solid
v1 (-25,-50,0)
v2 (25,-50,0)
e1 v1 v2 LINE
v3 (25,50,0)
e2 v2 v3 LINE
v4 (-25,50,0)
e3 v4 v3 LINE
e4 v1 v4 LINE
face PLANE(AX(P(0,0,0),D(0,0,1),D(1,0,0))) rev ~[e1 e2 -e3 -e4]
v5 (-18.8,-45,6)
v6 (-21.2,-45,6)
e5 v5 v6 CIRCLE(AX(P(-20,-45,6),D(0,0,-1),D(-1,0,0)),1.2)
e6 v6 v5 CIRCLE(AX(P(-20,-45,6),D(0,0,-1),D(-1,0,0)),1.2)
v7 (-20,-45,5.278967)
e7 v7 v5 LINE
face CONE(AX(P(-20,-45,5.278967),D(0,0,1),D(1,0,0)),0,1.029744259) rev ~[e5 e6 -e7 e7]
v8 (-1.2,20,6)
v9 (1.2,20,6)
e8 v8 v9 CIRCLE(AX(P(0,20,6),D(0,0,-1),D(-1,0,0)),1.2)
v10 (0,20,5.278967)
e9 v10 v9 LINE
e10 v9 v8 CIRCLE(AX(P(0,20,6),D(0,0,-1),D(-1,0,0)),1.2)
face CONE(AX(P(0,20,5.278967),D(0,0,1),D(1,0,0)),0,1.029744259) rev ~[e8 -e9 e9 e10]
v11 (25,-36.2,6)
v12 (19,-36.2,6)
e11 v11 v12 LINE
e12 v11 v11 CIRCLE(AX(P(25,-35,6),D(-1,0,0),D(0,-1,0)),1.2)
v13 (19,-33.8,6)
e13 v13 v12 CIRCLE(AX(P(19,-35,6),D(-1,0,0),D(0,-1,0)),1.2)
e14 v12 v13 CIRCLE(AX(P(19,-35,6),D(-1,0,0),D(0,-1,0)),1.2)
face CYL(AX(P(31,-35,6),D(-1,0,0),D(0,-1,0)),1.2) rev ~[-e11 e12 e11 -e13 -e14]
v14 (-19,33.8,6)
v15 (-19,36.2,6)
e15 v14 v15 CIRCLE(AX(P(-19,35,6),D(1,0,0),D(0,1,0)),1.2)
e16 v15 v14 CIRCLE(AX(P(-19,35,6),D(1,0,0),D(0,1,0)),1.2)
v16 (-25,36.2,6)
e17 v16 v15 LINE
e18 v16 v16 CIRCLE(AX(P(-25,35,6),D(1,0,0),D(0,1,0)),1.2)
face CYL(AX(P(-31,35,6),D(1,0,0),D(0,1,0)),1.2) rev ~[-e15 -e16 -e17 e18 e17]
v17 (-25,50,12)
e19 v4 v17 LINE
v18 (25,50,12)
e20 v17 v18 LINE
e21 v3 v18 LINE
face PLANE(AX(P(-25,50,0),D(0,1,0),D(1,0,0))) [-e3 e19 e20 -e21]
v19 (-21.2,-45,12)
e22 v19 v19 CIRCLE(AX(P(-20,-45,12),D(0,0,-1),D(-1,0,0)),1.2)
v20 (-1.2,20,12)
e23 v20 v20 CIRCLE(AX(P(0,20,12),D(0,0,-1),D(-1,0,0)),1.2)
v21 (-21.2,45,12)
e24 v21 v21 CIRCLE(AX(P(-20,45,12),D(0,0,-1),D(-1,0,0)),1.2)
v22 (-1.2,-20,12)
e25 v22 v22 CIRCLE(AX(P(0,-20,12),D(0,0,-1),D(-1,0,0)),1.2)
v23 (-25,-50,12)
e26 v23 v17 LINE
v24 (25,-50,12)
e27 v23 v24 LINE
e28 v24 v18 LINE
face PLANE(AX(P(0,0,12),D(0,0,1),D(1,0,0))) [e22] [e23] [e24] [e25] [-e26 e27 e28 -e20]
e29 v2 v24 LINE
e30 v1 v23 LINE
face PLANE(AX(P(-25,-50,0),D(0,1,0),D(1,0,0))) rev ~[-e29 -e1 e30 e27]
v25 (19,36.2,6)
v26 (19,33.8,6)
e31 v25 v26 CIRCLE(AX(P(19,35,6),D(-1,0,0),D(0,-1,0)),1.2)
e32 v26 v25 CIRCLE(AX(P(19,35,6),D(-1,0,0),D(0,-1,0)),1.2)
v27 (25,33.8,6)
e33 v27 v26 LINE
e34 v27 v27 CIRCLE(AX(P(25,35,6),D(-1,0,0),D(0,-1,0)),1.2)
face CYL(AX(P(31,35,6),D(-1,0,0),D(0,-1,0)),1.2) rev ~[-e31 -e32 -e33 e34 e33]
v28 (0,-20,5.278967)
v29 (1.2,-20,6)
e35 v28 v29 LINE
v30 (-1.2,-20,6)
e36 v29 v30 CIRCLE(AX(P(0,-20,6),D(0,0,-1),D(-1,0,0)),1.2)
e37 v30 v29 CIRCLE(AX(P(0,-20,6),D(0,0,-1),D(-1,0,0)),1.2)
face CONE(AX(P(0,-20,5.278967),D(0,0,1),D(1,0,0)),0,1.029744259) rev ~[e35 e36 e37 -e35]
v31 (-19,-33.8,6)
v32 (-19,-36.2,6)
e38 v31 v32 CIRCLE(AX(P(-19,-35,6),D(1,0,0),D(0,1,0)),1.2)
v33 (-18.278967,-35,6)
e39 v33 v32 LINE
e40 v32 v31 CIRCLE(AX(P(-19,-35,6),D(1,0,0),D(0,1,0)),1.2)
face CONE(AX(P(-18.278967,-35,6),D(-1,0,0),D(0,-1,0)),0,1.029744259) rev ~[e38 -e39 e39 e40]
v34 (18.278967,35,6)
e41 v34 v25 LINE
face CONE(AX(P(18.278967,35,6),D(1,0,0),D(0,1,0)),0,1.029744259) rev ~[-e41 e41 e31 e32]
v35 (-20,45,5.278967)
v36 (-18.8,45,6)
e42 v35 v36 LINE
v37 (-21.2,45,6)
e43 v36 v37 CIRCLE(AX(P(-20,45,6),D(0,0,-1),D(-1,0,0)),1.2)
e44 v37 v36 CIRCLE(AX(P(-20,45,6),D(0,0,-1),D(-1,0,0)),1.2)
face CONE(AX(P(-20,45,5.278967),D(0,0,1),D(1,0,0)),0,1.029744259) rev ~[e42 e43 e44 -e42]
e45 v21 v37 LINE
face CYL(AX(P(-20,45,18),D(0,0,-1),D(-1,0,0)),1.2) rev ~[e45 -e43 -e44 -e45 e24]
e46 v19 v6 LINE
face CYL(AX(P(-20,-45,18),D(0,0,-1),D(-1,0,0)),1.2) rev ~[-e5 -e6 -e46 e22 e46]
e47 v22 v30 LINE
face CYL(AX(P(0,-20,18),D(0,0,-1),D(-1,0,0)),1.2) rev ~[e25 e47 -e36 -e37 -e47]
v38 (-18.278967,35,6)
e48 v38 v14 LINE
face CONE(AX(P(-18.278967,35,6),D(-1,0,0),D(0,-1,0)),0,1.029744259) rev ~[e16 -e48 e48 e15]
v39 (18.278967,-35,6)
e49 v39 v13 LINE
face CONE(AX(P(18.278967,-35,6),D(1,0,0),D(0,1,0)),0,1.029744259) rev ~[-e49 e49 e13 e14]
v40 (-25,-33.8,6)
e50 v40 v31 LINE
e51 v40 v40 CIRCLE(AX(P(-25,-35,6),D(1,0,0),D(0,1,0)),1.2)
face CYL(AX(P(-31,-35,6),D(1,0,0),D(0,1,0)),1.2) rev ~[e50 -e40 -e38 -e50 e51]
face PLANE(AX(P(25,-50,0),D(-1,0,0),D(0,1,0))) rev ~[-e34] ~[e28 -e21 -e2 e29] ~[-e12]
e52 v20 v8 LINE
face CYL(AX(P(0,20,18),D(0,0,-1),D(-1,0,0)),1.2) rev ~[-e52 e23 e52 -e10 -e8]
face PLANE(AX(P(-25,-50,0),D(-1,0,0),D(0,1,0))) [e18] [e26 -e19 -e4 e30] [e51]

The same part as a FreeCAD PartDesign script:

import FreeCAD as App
import Part
import Sketcher
from FreeCAD import Vector
Q = App.Units.Quantity

doc = App.newDocument("Part")
body = doc.addObject("PartDesign::Body", "Body")

sketch1 = body.newObject("Sketcher::SketchObject", "Sketch")
sketch1.AttachmentSupport = (doc.getObject("XY_Plane"), [""])
sketch1.MapMode = "FlatFace"
sketch1.addGeometry([
    Part.LineSegment(Vector(-25, 50, 0), Vector(-25, -50, 0)),
    Part.LineSegment(Vector(-25, -50, 0), Vector(25, -50, 0)),
    Part.LineSegment(Vector(25, -50, 0), Vector(25, 50, 0)),
    Part.LineSegment(Vector(25, 50, 0), Vector(-25, 50, 0)),
], False)
sketch1.addConstraint([
    Sketcher.Constraint("Coincident", 0, 2, 1, 1),
    Sketcher.Constraint("Coincident", 1, 2, 2, 1),
    Sketcher.Constraint("Coincident", 2, 2, 3, 1),
    Sketcher.Constraint("Coincident", 3, 2, 0, 1),
    Sketcher.Constraint("Vertical", 0),
    Sketcher.Constraint("Horizontal", 1),
    Sketcher.Constraint("Vertical", 2),
    Sketcher.Constraint("Horizontal", 3),
    Sketcher.Constraint("Symmetric", 0, 2, 2, 2, -1, 1),
    Sketcher.Constraint("DistanceX", 1, 1, 1, 2, Q("50 mm")),
    Sketcher.Constraint("DistanceY", 0, 2, 0, 1, Q("100 mm")),
])
pad1 = body.newObject("PartDesign::Pad", "Pad")
pad1.Profile = sketch1
pad1.Length = 12

sketch2 = body.newObject("Sketcher::SketchObject", "Sketch001")
sketch2.AttachmentSupport = (doc.getObject("XY_Plane"), [""])
sketch2.MapMode = "FlatFace"
sketch2.AttachmentOffset = App.Placement(Vector(0, 0, 12), App.Rotation())
sketch2.addGeometry([
    Part.Circle(Vector(0, 20, 0), Vector(0, 0, 1), 1.2),
    Part.Circle(Vector(0, -20, 0), Vector(0, 0, 1), 1.2),
], False)
sketch2.addConstraint([
    Sketcher.Constraint("Equal", 0, 1),
    Sketcher.Constraint("Symmetric", 0, 3, 1, 3, -1, 1),
    Sketcher.Constraint("PointOnObject", 0, 3, -2),
    Sketcher.Constraint("Diameter", 0, Q("2.4 mm")),
    Sketcher.Constraint("DistanceY", -1, 1, 0, 3, Q("20 mm")),
])
doc.recompute()
hole = body.newObject("PartDesign::Hole", "Hole")
hole.Profile = sketch2
hole.ThreadType = "None"
hole.Diameter = 2.4
hole.DepthType = "Dimension"
hole.Depth = 6
hole.DrillPoint = "Angled"
hole.DrillPointAngle = 118

sketch3 = body.newObject("Sketcher::SketchObject", "Sketch002")
sketch3.AttachmentSupport = (doc.getObject("YZ_Plane"), [""])
sketch3.MapMode = "FlatFace"
sketch3.AttachmentOffset = App.Placement(Vector(0, 0, 25), App.Rotation())
sketch3.addGeometry([
    Part.Circle(Vector(-35, 6, 0), Vector(0, 0, 1), 1.2),
    Part.Circle(Vector(35, 6, 0), Vector(0, 0, 1), 1.2),
], False)
sketch3.addConstraint([
    Sketcher.Constraint("Equal", 0, 1),
    Sketcher.Constraint("Symmetric", 0, 3, 1, 3, -2),
    Sketcher.Constraint("Diameter", 0, Q("2.4 mm")),
    Sketcher.Constraint("DistanceX", 0, 3, -1, 1, Q("35 mm")),
    Sketcher.Constraint("DistanceY", -1, 1, 0, 3, Q("6 mm")),
])
doc.recompute()
hole2 = body.newObject("PartDesign::Hole", "Hole001")
hole2.Profile = sketch3
hole2.ThreadType = "None"
hole2.Diameter = 2.4
hole2.DepthType = "Dimension"
hole2.Depth = 6
hole2.DrillPoint = "Angled"
hole2.DrillPointAngle = 118

sketch4 = body.newObject("Sketcher::SketchObject", "Sketch003")
sketch4.AttachmentSupport = (doc.getObject("YZ_Plane"), [""])
sketch4.MapMode = "FlatFace"
sketch4.AttachmentOffset = App.Placement(Vector(0, 0, -25), App.Rotation())
sketch4.addGeometry([
    Part.Circle(Vector(35, 6, 0), Vector(0, 0, 1), 1.2),
    Part.Circle(Vector(-35, 6, 0), Vector(0, 0, 1), 1.2),
], False)
sketch4.addConstraint([
    Sketcher.Constraint("Equal", 0, 1),
    Sketcher.Constraint("Symmetric", 0, 3, 1, 3, -2),
    Sketcher.Constraint("Diameter", 0, Q("2.4 mm")),
    Sketcher.Constraint("DistanceX", -1, 1, 0, 3, Q("35 mm")),
    Sketcher.Constraint("DistanceY", -1, 1, 0, 3, Q("6 mm")),
])
doc.recompute()
hole3 = body.newObject("PartDesign::Hole", "Hole002")
hole3.Profile = sketch4
hole3.ThreadType = "None"
hole3.Diameter = 2.4
hole3.DepthType = "Dimension"
hole3.Depth = 6
hole3.DrillPoint = "Angled"
hole3.DrillPointAngle = 118
hole3.Reversed = True

sketch5 = body.newObject("Sketcher::SketchObject", "Sketch004")
sketch5.AttachmentSupport = (doc.getObject("XY_Plane"), [""])
sketch5.MapMode = "FlatFace"
sketch5.AttachmentOffset = App.Placement(Vector(0, 0, 12), App.Rotation())
sketch5.addGeometry([
    Part.Circle(Vector(-20, -45, 0), Vector(0, 0, 1), 1.2),
    Part.Circle(Vector(-20, 45, 0), Vector(0, 0, 1), 1.2),
], False)
sketch5.addConstraint([
    Sketcher.Constraint("Equal", 0, 1),
    Sketcher.Constraint("Symmetric", 0, 3, 1, 3, -1),
    Sketcher.Constraint("Diameter", 0, Q("2.4 mm")),
    Sketcher.Constraint("DistanceX", 0, 3, -1, 1, Q("20 mm")),
    Sketcher.Constraint("DistanceY", 0, 3, -1, 1, Q("45 mm")),
])
doc.recompute()
hole4 = body.newObject("PartDesign::Hole", "Hole003")
hole4.Profile = sketch5
hole4.ThreadType = "None"
hole4.Diameter = 2.4
hole4.DepthType = "Dimension"
hole4.Depth = 6
hole4.DrillPoint = "Angled"
hole4.DrillPointAngle = 118

doc.recompute()
